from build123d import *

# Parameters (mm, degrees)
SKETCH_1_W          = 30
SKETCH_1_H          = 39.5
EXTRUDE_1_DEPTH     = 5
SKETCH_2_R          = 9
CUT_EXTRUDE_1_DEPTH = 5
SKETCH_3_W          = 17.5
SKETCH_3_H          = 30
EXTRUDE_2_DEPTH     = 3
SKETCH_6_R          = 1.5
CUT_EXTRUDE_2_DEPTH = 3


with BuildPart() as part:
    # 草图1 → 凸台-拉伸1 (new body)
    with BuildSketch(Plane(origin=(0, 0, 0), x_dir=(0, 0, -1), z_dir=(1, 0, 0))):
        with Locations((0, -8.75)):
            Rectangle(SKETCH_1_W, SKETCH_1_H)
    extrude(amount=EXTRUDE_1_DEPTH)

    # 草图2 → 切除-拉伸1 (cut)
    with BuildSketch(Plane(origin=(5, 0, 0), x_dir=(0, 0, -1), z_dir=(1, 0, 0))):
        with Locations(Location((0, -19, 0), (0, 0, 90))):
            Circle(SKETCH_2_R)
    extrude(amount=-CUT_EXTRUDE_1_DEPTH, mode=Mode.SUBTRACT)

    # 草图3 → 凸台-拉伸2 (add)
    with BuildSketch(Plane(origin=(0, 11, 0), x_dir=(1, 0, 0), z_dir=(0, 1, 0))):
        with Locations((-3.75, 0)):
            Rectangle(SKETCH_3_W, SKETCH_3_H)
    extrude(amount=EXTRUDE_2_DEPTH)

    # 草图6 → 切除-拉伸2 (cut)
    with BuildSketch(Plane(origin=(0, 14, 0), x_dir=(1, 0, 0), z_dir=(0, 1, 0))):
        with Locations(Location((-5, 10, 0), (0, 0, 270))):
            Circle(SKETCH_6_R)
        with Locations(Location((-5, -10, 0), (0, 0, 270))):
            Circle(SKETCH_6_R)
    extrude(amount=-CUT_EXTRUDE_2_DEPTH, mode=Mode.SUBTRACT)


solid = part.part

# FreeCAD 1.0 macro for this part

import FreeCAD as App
import Part
import Sketcher
from FreeCAD import Vector
Q = App.Units.Quantity

doc = App.newDocument("Part")
body = doc.addObject("PartDesign::Body", "Body")

sketch1 = body.newObject("Sketcher::SketchObject", "Sketch")
sketch1.AttachmentSupport = (doc.getObject("YZ_Plane"), [""])
sketch1.MapMode = "FlatFace"
sketch1.addGeometry(Part.LineSegment(Vector(11, 15, 0), Vector(-28, 15, 0)), False)
sketch1.addGeometry(Part.LineSegment(Vector(-28, 15, 0), Vector(-28, -15, 0)), False)
sketch1.addGeometry(Part.LineSegment(Vector(-28, -15, 0), Vector(11, -15, 0)), False)
sketch1.addGeometry(Part.LineSegment(Vector(11, -15, 0), Vector(11, 15, 0)), False)
sketch1.addConstraint(Sketcher.Constraint("Coincident", 0, 2, 1, 1))
sketch1.addConstraint(Sketcher.Constraint("Coincident", 1, 2, 2, 1))
sketch1.addConstraint(Sketcher.Constraint("Coincident", 2, 2, 3, 1))
sketch1.addConstraint(Sketcher.Constraint("Coincident", 3, 2, 0, 1))
sketch1.addConstraint(Sketcher.Constraint("Horizontal", 0))
sketch1.addConstraint(Sketcher.Constraint("Vertical", 1))
sketch1.addConstraint(Sketcher.Constraint("Horizontal", 2))
sketch1.addConstraint(Sketcher.Constraint("Vertical", 3))
sketch1.addConstraint(Sketcher.Constraint("DistanceY", 1, 2, 1, 1, Q("30 mm")))
sketch1.addConstraint(Sketcher.Constraint("DistanceX", 0, 2, 0, 1, Q("39.5 mm")))
sketch1.addConstraint(Sketcher.Constraint("DistanceY", -1, 1, 0, 2, Q("15 mm")))
sketch1.addConstraint(Sketcher.Constraint("DistanceX", -1, 1, 2, 2, Q("11 mm")))
pad1 = body.newObject("PartDesign::Pad", "Pad")
pad1.Profile = sketch1
pad1.Length = 5

sketch2 = body.newObject("Sketcher::SketchObject", "Sketch001")
sketch2.AttachmentSupport = (doc.getObject("YZ_Plane"), [""])
sketch2.MapMode = "FlatFace"
sketch2.AttachmentOffset = App.Placement(Vector(0, 0, 5), App.Rotation())
sketch2.addGeometry(Part.Circle(Vector(-19, 0, 0), Vector(0, 0, 1), 9), False)
sketch2.addConstraint(Sketcher.Constraint("PointOnObject", 0, 3, -1))
sketch2.addConstraint(Sketcher.Constraint("Diameter", 0, Q("18 mm")))
sketch2.addConstraint(Sketcher.Constraint("DistanceX", 0, 3, -1, 1, Q("19 mm")))
pocket1 = body.newObject("PartDesign::Pocket", "Pocket")
pocket1.Profile = sketch2
pocket1.Length = 5

sketch3 = body.newObject("Sketcher::SketchObject", "Sketch002")
sketch3.AttachmentSupport = (doc.getObject("XZ_Plane"), [""])
sketch3.MapMode = "FlatFace"
sketch3.AttachmentOffset = App.Placement(Vector(0, 0, -11), App.Rotation())
sketch3.addGeometry(Part.LineSegment(Vector(-12, -15, 0), Vector(-12, 15, 0)), False)
sketch3.addGeometry(Part.LineSegment(Vector(-12, 15, 0), Vector(5, 15, 0)), False)
sketch3.addGeometry(Part.LineSegment(Vector(5, 15, 0), Vector(5, -15, 0)), False)
sketch3.addGeometry(Part.LineSegment(Vector(5, -15, 0), Vector(-12, -15, 0)), False)
sketch3.addConstraint(Sketcher.Constraint("Coincident", 0, 2, 1, 1))
sketch3.addConstraint(Sketcher.Constraint("Coincident", 1, 2, 2, 1))
sketch3.addConstraint(Sketcher.Constraint("Coincident", 2, 2, 3, 1))
sketch3.addConstraint(Sketcher.Constraint("Coincident", 3, 2, 0, 1))
sketch3.addConstraint(Sketcher.Constraint("Vertical", 0))
sketch3.addConstraint(Sketcher.Constraint("Horizontal", 1))
sketch3.addConstraint(Sketcher.Constraint("Vertical", 2))
sketch3.addConstraint(Sketcher.Constraint("Horizontal", 3))
sketch3.addConstraint(Sketcher.Constraint("DistanceY", 0, 1, 0, 2, Q("30 mm")))
sketch3.addConstraint(Sketcher.Constraint("DistanceX", 1, 1, 1, 2, Q("17.5 mm")))
sketch3.addConstraint(Sketcher.Constraint("DistanceY", -1, 1, 0, 2, Q("15 mm")))
sketch3.addConstraint(Sketcher.Constraint("DistanceX", -1, 1, 1, 2, Q("5 mm")))
pad2 = body.newObject("PartDesign::Pad", "Pad001")
pad2.Profile = sketch3
pad2.Length = 3
pad2.Reversed = True

sketch4 = body.newObject("Sketcher::SketchObject", "Sketch003")
sketch4.AttachmentSupport = (doc.getObject("XZ_Plane"), [""])
sketch4.MapMode = "FlatFace"
sketch4.AttachmentOffset = App.Placement(Vector(0, 0, -14), App.Rotation())
sketch4.addGeometry(Part.Circle(Vector(-5, -10, 0), Vector(0, 0, 1), 1.5), False)
sketch4.addGeometry(Part.Circle(Vector(-5, 10, 0), Vector(0, 0, 1), 1.5), False)
sketch4.addConstraint(Sketcher.Constraint("Equal", 0, 1))
sketch4.addConstraint(Sketcher.Constraint("Symmetric", 0, 3, 1, 3, -1))
sketch4.addConstraint(Sketcher.Constraint("Diameter", 0, Q("3 mm")))
sketch4.addConstraint(Sketcher.Constraint("DistanceX", 0, 3, -1, 1, Q("5 mm")))
sketch4.addConstraint(Sketcher.Constraint("DistanceY", 0, 3, -1, 1, Q("10 mm")))
pocket2 = body.newObject("PartDesign::Pocket", "Pocket001")
pocket2.Profile = sketch4
pocket2.Length = 3
pocket2.Reversed = True

doc.recompute()
